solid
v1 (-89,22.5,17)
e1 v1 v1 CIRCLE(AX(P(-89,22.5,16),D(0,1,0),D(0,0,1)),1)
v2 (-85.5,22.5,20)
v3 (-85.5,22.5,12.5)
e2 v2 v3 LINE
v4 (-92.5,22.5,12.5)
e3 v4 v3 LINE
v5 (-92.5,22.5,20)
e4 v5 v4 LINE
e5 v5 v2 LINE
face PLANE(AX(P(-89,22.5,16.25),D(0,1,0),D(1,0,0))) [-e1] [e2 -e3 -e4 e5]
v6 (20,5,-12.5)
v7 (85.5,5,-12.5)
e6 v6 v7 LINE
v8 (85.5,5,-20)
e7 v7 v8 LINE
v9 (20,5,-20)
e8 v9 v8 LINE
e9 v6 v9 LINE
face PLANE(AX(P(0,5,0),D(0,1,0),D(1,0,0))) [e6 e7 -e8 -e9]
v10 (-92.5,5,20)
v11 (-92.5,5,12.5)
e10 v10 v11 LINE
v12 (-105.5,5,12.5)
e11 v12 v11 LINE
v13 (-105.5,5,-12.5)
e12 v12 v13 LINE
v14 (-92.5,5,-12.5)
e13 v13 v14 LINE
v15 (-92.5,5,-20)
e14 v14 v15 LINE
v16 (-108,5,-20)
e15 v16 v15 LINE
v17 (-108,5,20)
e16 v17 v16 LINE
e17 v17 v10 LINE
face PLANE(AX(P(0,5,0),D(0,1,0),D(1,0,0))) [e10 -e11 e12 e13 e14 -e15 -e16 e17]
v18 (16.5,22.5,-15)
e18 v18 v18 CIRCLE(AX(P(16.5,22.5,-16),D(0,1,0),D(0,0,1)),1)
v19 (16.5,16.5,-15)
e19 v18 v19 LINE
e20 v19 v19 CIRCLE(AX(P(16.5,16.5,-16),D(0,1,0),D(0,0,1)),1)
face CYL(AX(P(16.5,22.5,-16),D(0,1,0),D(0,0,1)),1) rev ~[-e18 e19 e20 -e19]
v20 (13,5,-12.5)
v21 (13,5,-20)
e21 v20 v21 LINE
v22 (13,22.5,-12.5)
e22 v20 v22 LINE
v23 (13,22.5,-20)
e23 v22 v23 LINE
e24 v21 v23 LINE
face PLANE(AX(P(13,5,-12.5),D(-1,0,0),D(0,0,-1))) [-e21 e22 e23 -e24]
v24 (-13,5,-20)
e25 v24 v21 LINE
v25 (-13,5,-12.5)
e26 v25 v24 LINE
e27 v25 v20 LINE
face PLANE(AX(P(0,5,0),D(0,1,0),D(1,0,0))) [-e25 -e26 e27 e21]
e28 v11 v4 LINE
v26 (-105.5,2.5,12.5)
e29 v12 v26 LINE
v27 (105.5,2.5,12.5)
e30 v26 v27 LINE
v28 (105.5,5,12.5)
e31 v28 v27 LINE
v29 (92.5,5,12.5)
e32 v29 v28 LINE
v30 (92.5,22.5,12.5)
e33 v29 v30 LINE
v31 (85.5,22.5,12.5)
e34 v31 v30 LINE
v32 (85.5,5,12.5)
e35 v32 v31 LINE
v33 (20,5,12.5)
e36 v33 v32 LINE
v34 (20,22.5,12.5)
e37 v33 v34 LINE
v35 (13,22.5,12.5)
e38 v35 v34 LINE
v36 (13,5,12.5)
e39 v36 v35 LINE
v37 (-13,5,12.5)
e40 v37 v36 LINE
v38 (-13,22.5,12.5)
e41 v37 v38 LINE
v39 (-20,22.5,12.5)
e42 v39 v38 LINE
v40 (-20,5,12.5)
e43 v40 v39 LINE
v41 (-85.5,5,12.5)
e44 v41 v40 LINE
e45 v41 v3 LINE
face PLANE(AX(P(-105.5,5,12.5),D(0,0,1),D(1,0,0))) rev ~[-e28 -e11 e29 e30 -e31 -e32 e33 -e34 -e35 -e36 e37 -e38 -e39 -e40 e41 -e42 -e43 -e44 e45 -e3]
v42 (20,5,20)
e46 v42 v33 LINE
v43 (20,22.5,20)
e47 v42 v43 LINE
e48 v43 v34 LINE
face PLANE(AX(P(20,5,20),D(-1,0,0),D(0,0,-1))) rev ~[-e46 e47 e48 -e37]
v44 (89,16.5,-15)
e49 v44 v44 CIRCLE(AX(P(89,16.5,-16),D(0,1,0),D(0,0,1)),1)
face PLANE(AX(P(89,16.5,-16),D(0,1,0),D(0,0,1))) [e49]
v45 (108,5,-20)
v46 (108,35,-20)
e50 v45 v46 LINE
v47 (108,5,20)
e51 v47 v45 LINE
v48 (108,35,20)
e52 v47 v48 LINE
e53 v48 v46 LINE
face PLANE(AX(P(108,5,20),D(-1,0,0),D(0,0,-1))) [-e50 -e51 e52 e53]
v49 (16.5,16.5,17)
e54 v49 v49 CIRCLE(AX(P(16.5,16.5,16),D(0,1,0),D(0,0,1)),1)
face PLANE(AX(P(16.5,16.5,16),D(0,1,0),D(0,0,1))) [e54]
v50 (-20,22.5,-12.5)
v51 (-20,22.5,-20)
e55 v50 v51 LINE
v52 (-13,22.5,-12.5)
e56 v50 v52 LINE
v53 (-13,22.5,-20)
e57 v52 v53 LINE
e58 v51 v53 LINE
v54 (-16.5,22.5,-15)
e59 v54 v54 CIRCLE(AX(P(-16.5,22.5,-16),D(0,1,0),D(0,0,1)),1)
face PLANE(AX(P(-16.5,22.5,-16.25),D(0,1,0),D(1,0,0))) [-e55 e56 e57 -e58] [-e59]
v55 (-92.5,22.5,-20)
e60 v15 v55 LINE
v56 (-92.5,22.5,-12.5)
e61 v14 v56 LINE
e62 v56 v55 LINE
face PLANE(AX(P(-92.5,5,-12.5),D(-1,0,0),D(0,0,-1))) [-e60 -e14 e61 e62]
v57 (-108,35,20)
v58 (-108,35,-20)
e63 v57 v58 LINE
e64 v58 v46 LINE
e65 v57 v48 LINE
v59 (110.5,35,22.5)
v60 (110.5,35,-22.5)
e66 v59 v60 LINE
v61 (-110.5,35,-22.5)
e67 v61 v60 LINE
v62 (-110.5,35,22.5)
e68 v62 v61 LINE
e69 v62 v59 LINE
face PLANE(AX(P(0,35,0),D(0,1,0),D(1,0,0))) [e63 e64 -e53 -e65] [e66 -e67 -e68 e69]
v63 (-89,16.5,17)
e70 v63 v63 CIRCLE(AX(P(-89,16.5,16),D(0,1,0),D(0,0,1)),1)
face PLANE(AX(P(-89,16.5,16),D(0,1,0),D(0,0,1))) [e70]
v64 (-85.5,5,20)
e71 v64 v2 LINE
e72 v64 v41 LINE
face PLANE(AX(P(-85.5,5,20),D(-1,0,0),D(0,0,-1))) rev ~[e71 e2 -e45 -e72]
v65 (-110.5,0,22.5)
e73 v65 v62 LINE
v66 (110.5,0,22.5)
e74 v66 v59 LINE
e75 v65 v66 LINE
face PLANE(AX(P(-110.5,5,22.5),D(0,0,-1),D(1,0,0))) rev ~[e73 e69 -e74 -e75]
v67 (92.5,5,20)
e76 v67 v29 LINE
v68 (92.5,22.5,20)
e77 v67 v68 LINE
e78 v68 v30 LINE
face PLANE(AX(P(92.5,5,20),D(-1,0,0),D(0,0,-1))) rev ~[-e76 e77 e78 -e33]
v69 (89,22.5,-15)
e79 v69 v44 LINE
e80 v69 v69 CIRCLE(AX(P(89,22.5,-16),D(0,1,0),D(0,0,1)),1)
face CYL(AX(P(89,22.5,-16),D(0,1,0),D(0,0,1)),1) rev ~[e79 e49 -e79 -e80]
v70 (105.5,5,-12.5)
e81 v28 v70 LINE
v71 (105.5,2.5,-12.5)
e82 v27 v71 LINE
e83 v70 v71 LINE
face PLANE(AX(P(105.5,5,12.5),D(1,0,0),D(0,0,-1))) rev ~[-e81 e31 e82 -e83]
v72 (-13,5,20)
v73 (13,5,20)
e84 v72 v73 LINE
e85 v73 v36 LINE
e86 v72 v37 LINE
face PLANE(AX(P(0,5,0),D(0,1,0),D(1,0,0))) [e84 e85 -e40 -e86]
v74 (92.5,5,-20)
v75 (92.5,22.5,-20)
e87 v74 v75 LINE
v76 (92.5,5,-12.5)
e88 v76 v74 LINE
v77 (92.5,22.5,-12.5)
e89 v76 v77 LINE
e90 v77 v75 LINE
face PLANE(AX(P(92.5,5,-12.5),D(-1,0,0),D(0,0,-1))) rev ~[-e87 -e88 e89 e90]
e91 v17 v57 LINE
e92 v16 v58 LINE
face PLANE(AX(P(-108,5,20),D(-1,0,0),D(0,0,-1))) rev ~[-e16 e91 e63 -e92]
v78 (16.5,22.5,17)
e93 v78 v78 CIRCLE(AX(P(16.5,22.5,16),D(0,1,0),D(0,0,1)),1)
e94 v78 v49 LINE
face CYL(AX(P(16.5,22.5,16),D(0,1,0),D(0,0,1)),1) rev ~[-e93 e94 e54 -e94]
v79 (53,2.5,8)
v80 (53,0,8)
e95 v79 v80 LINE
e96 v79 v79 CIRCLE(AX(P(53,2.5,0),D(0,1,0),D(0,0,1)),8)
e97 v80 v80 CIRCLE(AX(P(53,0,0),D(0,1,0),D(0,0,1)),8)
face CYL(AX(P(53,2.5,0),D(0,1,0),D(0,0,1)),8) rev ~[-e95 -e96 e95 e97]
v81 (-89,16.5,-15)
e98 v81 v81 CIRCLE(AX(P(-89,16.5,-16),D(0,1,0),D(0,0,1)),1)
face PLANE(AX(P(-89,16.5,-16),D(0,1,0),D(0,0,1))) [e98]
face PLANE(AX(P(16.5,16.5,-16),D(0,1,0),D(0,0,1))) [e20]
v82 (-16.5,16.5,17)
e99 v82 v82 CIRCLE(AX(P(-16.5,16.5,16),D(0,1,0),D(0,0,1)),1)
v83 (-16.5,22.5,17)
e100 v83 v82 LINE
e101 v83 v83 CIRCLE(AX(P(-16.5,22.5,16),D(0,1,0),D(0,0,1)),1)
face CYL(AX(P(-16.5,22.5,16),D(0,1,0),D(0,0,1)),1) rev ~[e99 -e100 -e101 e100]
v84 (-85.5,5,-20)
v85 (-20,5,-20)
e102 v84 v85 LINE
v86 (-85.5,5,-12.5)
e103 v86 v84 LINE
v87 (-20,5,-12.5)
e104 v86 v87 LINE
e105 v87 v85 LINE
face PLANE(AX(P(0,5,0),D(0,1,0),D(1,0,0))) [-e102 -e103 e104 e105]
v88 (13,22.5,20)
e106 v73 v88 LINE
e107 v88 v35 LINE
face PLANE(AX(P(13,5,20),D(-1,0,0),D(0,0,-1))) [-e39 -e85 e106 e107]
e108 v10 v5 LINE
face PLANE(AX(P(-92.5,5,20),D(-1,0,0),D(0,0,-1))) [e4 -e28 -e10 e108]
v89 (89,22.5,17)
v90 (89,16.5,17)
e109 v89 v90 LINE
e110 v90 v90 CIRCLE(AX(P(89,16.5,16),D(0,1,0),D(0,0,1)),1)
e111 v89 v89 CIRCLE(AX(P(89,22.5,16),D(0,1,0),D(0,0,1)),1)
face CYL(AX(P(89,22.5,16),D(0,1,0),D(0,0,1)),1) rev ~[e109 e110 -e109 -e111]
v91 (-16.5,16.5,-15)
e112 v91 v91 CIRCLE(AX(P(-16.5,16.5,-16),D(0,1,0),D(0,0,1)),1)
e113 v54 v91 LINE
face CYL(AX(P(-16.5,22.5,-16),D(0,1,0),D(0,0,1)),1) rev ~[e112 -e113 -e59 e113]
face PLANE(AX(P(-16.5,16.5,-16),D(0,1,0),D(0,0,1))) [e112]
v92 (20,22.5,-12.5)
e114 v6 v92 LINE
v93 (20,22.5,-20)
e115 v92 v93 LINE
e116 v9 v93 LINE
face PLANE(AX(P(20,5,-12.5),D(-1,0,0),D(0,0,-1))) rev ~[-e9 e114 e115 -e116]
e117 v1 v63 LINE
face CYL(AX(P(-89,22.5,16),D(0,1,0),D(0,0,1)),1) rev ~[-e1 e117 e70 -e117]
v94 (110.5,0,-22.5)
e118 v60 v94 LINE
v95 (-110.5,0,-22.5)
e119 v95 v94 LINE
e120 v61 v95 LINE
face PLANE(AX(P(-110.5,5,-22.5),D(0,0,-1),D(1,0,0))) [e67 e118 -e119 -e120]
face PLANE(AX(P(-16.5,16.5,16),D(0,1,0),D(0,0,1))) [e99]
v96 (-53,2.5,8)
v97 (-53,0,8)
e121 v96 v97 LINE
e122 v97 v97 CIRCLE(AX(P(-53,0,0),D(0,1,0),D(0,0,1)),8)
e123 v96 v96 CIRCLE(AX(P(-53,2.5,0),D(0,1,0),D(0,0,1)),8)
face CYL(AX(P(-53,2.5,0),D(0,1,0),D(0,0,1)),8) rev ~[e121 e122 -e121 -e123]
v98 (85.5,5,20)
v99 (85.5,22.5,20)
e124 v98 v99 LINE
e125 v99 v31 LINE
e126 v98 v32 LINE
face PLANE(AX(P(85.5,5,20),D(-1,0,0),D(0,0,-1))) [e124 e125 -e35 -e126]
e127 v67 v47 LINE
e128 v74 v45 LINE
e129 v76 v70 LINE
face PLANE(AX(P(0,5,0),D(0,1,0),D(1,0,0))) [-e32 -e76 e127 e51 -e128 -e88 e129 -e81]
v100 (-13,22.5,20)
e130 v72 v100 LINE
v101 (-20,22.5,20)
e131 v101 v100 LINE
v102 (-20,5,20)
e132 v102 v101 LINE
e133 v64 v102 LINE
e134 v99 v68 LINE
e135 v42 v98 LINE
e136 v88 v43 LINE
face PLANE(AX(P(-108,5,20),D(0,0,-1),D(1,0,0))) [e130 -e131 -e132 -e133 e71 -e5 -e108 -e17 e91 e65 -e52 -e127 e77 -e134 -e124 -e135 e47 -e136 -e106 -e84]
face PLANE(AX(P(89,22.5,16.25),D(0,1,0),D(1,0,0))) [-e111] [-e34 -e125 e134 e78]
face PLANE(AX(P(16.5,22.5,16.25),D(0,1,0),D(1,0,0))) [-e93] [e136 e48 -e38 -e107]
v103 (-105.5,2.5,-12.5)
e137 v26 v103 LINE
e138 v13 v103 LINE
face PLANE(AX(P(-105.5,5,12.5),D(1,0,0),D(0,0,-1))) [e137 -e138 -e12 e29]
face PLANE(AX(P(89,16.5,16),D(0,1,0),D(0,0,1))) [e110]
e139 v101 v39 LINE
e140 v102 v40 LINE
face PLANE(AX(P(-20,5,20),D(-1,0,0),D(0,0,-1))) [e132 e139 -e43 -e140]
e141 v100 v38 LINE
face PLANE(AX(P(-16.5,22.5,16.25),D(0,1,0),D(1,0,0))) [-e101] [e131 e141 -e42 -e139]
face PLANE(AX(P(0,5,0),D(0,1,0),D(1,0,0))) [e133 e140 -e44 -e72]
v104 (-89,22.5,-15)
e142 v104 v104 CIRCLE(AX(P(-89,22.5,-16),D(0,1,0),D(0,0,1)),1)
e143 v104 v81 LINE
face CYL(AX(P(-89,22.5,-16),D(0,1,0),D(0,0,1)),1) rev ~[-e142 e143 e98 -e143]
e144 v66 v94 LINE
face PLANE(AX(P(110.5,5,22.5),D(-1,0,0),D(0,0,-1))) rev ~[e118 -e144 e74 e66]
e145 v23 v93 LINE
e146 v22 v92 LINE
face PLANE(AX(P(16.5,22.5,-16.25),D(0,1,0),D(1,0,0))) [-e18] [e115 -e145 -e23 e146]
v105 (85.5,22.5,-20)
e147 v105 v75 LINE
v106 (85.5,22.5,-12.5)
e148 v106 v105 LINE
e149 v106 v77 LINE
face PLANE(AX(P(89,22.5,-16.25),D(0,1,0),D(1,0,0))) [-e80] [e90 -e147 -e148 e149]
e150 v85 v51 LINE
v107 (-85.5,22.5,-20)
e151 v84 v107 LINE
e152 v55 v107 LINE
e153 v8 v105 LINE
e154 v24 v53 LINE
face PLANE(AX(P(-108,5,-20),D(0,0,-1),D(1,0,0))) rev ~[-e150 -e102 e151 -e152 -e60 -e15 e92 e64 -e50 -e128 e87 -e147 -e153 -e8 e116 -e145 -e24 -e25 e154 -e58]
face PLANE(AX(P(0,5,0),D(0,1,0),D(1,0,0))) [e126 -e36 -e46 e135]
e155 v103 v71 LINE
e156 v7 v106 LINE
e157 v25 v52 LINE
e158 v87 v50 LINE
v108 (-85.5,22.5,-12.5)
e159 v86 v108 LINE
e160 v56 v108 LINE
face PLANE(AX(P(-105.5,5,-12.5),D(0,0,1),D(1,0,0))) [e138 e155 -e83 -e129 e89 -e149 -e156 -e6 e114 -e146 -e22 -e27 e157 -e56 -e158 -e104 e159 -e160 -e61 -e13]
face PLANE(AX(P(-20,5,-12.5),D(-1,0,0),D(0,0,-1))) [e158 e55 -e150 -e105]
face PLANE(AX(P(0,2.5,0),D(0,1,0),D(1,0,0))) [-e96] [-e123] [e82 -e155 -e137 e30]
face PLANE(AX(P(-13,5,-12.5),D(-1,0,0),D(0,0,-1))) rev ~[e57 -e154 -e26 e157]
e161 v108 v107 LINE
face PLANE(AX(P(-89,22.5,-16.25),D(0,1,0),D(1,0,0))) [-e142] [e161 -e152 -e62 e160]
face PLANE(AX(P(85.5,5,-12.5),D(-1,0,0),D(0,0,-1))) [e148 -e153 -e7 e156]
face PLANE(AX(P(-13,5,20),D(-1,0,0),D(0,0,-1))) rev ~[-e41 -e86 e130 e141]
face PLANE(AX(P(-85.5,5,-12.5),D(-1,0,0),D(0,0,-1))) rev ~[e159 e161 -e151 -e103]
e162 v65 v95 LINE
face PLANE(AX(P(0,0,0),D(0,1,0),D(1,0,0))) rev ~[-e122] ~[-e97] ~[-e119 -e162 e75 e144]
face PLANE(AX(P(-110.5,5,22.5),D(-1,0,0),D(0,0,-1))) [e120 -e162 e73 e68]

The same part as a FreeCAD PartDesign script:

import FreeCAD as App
import Part
import Sketcher


def add_polygon(sketch, points):
    """Adds a closed chain of lines whose ends are joined by coincident constraints."""
    first, n = sketch.GeometryCount, len(points)
    for a, b in zip(points, points[1:] + points[:1]):
        sketch.addGeometry(Part.LineSegment(App.Vector(*a, 0), App.Vector(*b, 0)), False)
    for i in range(n):
        sketch.addConstraint(Sketcher.Constraint("Coincident", first + i, 2, first + (i + 1) % n, 1))

doc = App.newDocument("Part")
body = doc.addObject("PartDesign::Body", "Body")

sketch1 = body.newObject("Sketcher::SketchObject", "Sketch")
sketch1.AttachmentSupport = (doc.getObject("XZ_Plane"), [""])
sketch1.MapMode = "FlatFace"
add_polygon(sketch1, [(-110, -22), (-110, 22), (110, 22), (110, -22)])
sketch1.addConstraint(Sketcher.Constraint("Vertical", 0))
sketch1.addConstraint(Sketcher.Constraint("Horizontal", 1))
sketch1.addConstraint(Sketcher.Constraint("Vertical", 2))
sketch1.addConstraint(Sketcher.Constraint("Horizontal", 3))
sketch1.addConstraint(Sketcher.Constraint("Symmetric", 0, 2, 2, 2, -1, 1))
sketch1.addConstraint(Sketcher.Constraint("DistanceX", 1, 1, 1, 2, 221.0))
sketch1.addConstraint(Sketcher.Constraint("DistanceY", 0, 1, 0, 2, 45.0))
pad1 = body.newObject("PartDesign::Pad", "Pad")
pad1.Profile = sketch1
pad1.Length = 5
pad1.Reversed = True

sketch2 = body.newObject("Sketcher::SketchObject", "Sketch001")
sketch2.AttachmentSupport = (doc.getObject("XZ_Plane"), [""])
sketch2.MapMode = "FlatFace"
sketch2.AttachmentOffset = App.Placement(App.Vector(0, 0, -5), App.Rotation())
add_polygon(sketch2, [(-106, -12), (-106, 12), (106, 12), (106, -12)])
sketch2.addConstraint(Sketcher.Constraint("Vertical", 0))
sketch2.addConstraint(Sketcher.Constraint("Horizontal", 1))
sketch2.addConstraint(Sketcher.Constraint("Vertical", 2))
sketch2.addConstraint(Sketcher.Constraint("Horizontal", 3))
sketch2.addConstraint(Sketcher.Constraint("Symmetric", 0, 2, 2, 2, -1, 1))
sketch2.addConstraint(Sketcher.Constraint("DistanceX", 1, 1, 1, 2, 211.0))
sketch2.addConstraint(Sketcher.Constraint("DistanceY", 0, 1, 0, 2, 25.0))
pocket1 = body.newObject("PartDesign::Pocket", "Pocket")
pocket1.Profile = sketch2
pocket1.Length = 2.5
pocket1.Reversed = True

sketch3 = body.newObject("Sketcher::SketchObject", "Sketch002")
sketch3.AttachmentSupport = (doc.getObject("XZ_Plane"), [""])
sketch3.MapMode = "FlatFace"
sketch3.AttachmentOffset = App.Placement(App.Vector(0, 0, -2.5), App.Rotation())
sketch3.addGeometry(Part.Circle(App.Vector(-53, 0, 0), App.Vector(0, 0, 1), 8), False)
sketch3.addGeometry(Part.Circle(App.Vector(53, 0, 0), App.Vector(0, 0, 1), 8), False)
sketch3.addConstraint(Sketcher.Constraint("Equal", 0, 1))
sketch3.addConstraint(Sketcher.Constraint("Symmetric", 0, 3, 1, 3, -1, 1))
sketch3.addConstraint(Sketcher.Constraint("PointOnObject", 0, 3, -1))
sketch3.addConstraint(Sketcher.Constraint("Diameter", 0, 16.0))
sketch3.addConstraint(Sketcher.Constraint("DistanceX", 0, 3, -1, 1, 53.0))
pocket2 = body.newObject("PartDesign::Pocket", "Pocket001")
pocket2.Profile = sketch3
pocket2.Length = 2.5
pocket2.Reversed = True

sketch4 = body.newObject("Sketcher::SketchObject", "Sketch003")
sketch4.AttachmentSupport = (doc.getObject("XZ_Plane"), [""])
sketch4.MapMode = "FlatFace"
sketch4.AttachmentOffset = App.Placement(App.Vector(0, 0, -5), App.Rotation())
add_polygon(sketch4, [(-110, -22), (-110, 22), (110, 22), (110, -22)])
add_polygon(sketch4, [(108, 20), (-108, 20), (-108, -20), (108, -20)])
sketch4.addConstraint(Sketcher.Constraint("Vertical", 0))
sketch4.addConstraint(Sketcher.Constraint("Horizontal", 1))
sketch4.addConstraint(Sketcher.Constraint("Vertical", 2))
sketch4.addConstraint(Sketcher.Constraint("Horizontal", 3))
sketch4.addConstraint(Sketcher.Constraint("Horizontal", 4))
sketch4.addConstraint(Sketcher.Constraint("Vertical", 5))
sketch4.addConstraint(Sketcher.Constraint("Horizontal", 6))
sketch4.addConstraint(Sketcher.Constraint("Vertical", 7))
sketch4.addConstraint(Sketcher.Constraint("Symmetric", 0, 2, 2, 2, -1, 1))
sketch4.addConstraint(Sketcher.Constraint("Symmetric", 4, 2, 6, 2, -1, 1))
sketch4.addConstraint(Sketcher.Constraint("DistanceX", 1, 1, 1, 2, 221.0))
sketch4.addConstraint(Sketcher.Constraint("DistanceX", 4, 2, 4, 1, 216.0))
sketch4.addConstraint(Sketcher.Constraint("DistanceY", 0, 1, 0, 2, 45.0))
sketch4.addConstraint(Sketcher.Constraint("DistanceY", 5, 2, 5, 1, 40.0))
pad2 = body.newObject("PartDesign::Pad", "Pad001")
pad2.Profile = sketch4
pad2.Length = 30
pad2.Reversed = True

sketch5 = body.newObject("Sketcher::SketchObject", "Sketch004")
sketch5.AttachmentSupport = (doc.getObject("XZ_Plane"), [""])
sketch5.MapMode = "FlatFace"
sketch5.AttachmentOffset = App.Placement(App.Vector(0, 0, -5), App.Rotation())
add_polygon(sketch5, [(-92, -20), (-92, -12), (-86, -12), (-86, -20)])
add_polygon(sketch5, [(-92, 12), (-92, 20), (-86, 20), (-86, 12)])
add_polygon(sketch5, [(-20, -20), (-20, -12), (-13, -12), (-13, -20)])
add_polygon(sketch5, [(-20, 12), (-20, 20), (-13, 20), (-13, 12)])
add_polygon(sketch5, [(13, -20), (13, -12), (20, -12), (20, -20)])
add_polygon(sketch5, [(13, 12), (13, 20), (20, 20), (20, 12)])
add_polygon(sketch5, [(86, -20), (86, -12), (92, -12), (92, -20)])
add_polygon(sketch5, [(86, 12), (86, 20), (92, 20), (92, 12)])
sketch5.addConstraint(Sketcher.Constraint("Vertical", 0))
sketch5.addConstraint(Sketcher.Constraint("Horizontal", 1))
sketch5.addConstraint(Sketcher.Constraint("Vertical", 2))
sketch5.addConstraint(Sketcher.Constraint("Horizontal", 3))
sketch5.addConstraint(Sketcher.Constraint("Vertical", 4))
sketch5.addConstraint(Sketcher.Constraint("Horizontal", 5))
sketch5.addConstraint(Sketcher.Constraint("Vertical", 6))
sketch5.addConstraint(Sketcher.Constraint("Horizontal", 7))
sketch5.addConstraint(Sketcher.Constraint("Vertical", 8))
sketch5.addConstraint(Sketcher.Constraint("Horizontal", 9))
sketch5.addConstraint(Sketcher.Constraint("Vertical", 10))
sketch5.addConstraint(Sketcher.Constraint("Horizontal", 11))
sketch5.addConstraint(Sketcher.Constraint("Vertical", 12))
sketch5.addConstraint(Sketcher.Constraint("Horizontal", 13))
sketch5.addConstraint(Sketcher.Constraint("Vertical", 14))
sketch5.addConstraint(Sketcher.Constraint("Horizontal", 15))
sketch5.addConstraint(Sketcher.Constraint("Vertical", 16))
sketch5.addConstraint(Sketcher.Constraint("Horizontal", 17))
sketch5.addConstraint(Sketcher.Constraint("Vertical", 18))
sketch5.addConstraint(Sketcher.Constraint("Horizontal", 19))
sketch5.addConstraint(Sketcher.Constraint("Vertical", 20))
sketch5.addConstraint(Sketcher.Constraint("Horizontal", 21))
sketch5.addConstraint(Sketcher.Constraint("Vertical", 22))
sketch5.addConstraint(Sketcher.Constraint("Horizontal", 23))
sketch5.addConstraint(Sketcher.Constraint("Vertical", 24))
sketch5.addConstraint(Sketcher.Constraint("Horizontal", 25))
sketch5.addConstraint(Sketcher.Constraint("Vertical", 26))
sketch5.addConstraint(Sketcher.Constraint("Horizontal", 27))
sketch5.addConstraint(Sketcher.Constraint("Vertical", 28))
sketch5.addConstraint(Sketcher.Constraint("Horizontal", 29))
sketch5.addConstraint(Sketcher.Constraint("Vertical", 30))
sketch5.addConstraint(Sketcher.Constraint("Horizontal", 31))
sketch5.addConstraint(Sketcher.Constraint("Symmetric", 14, 2, 16, 2, -1, 1))
sketch5.addConstraint(Sketcher.Constraint("Symmetric", 12, 2, 18, 2, -1, 1))
sketch5.addConstraint(Sketcher.Constraint("Symmetric", 10, 2, 20, 2, -1, 1))
sketch5.addConstraint(Sketcher.Constraint("Symmetric", 8, 2, 22, 2, -1, 1))
sketch5.addConstraint(Sketcher.Constraint("Symmetric", 6, 2, 24, 2, -1, 1))
sketch5.addConstraint(Sketcher.Constraint("Symmetric", 4, 2, 26, 2, -1, 1))
sketch5.addConstraint(Sketcher.Constraint("Symmetric", 2, 2, 28, 2, -1, 1))
sketch5.addConstraint(Sketcher.Constraint("Symmetric", 0, 2, 30, 2, -1, 1))
sketch5.addConstraint(Sketcher.Constraint("Symmetric", 9, 2, 16, 2, -2))
sketch5.addConstraint(Sketcher.Constraint("Symmetric", 11, 2, 18, 2, -2))
sketch5.addConstraint(Sketcher.Constraint("Symmetric", 1, 2, 24, 2, -2))
sketch5.addConstraint(Sketcher.Constraint("Symmetric", 3, 2, 26, 2, -2))
sketch5.addConstraint(Sketcher.Constraint("Horizontal", 1, 2, 8, 2))
sketch5.addConstraint(Sketcher.Constraint("Horizontal", 3, 2, 10, 2))
sketch5.addConstraint(Sketcher.Constraint("Equal", 7, 9))
sketch5.addConstraint(Sketcher.Constraint("DistanceX", 1, 1, 1, 2, 7.0))
sketch5.addConstraint(Sketcher.Constraint("DistanceY", 0, 1, 0, 2, 7.5))
sketch5.addConstraint(Sketcher.Constraint("DistanceY", 2, 2, -1, 1, 20.0))
sketch5.addConstraint(Sketcher.Constraint("DistanceX", 8, 2, -1, 1, 20.0))
sketch5.addConstraint(Sketcher.Constraint("DistanceX", 0, 2, -1, 1, 92.5))
pad3 = body.newObject("PartDesign::Pad", "Pad002")
pad3.Profile = sketch5
pad3.Length = 17.5
pad3.Reversed = True

sketch6 = body.newObject("Sketcher::SketchObject", "Sketch005")
sketch6.AttachmentSupport = (doc.getObject("XZ_Plane"), [""])
sketch6.MapMode = "FlatFace"
sketch6.AttachmentOffset = App.Placement(App.Vector(0, 0, -22.5), App.Rotation())
sketch6.addGeometry(Part.Circle(App.Vector(-89, -16, 0), App.Vector(0, 0, 1), 1), False)
sketch6.addGeometry(Part.Circle(App.Vector(-89, 16, 0), App.Vector(0, 0, 1), 1), False)
sketch6.addGeometry(Part.Circle(App.Vector(-16.5, -16, 0), App.Vector(0, 0, 1), 1), False)
sketch6.addGeometry(Part.Circle(App.Vector(-16.5, 16, 0), App.Vector(0, 0, 1), 1), False)
sketch6.addGeometry(Part.Circle(App.Vector(16.5, -16, 0), App.Vector(0, 0, 1), 1), False)
sketch6.addGeometry(Part.Circle(App.Vector(16.5, 16, 0), App.Vector(0, 0, 1), 1), False)
sketch6.addGeometry(Part.Circle(App.Vector(89, -16, 0), App.Vector(0, 0, 1), 1), False)
sketch6.addGeometry(Part.Circle(App.Vector(89, 16, 0), App.Vector(0, 0, 1), 1), False)
sketch6.addConstraint(Sketcher.Constraint("Equal", 0, 1))
sketch6.addConstraint(Sketcher.Constraint("Equal", 1, 2))
sketch6.addConstraint(Sketcher.Constraint("Equal", 2, 3))
sketch6.addConstraint(Sketcher.Constraint("Equal", 3, 4))
sketch6.addConstraint(Sketcher.Constraint("Equal", 4, 5))
sketch6.addConstraint(Sketcher.Constraint("Equal", 5, 6))
sketch6.addConstraint(Sketcher.Constraint("Equal", 6, 7))
sketch6.addConstraint(Sketcher.Constraint("Symmetric", 3, 3, 4, 3, -1, 1))
sketch6.addConstraint(Sketcher.Constraint("Symmetric", 2, 3, 5, 3, -1, 1))
sketch6.addConstraint(Sketcher.Constraint("Symmetric", 1, 3, 6, 3, -1, 1))
sketch6.addConstraint(Sketcher.Constraint("Symmetric", 0, 3, 7, 3, -1, 1))
sketch6.addConstraint(Sketcher.Constraint("Symmetric", 2, 3, 4, 3, -2))
sketch6.addConstraint(Sketcher.Constraint("Symmetric", 0, 3, 6, 3, -2))
sketch6.addConstraint(Sketcher.Constraint("Horizontal", 0, 3, 2, 3))
sketch6.addConstraint(Sketcher.Constraint("Diameter", 0, 2.0))
sketch6.addConstraint(Sketcher.Constraint("DistanceX", 0, 3, -1, 1, 89.0))
sketch6.addConstraint(Sketcher.Constraint("DistanceY", 0, 3, -1, 1, 16.0))
sketch6.addConstraint(Sketcher.Constraint("DistanceX", 2, 3, 4, 3, 33.0))
pocket3 = body.newObject("PartDesign::Pocket", "Pocket002")
pocket3.Profile = sketch6
pocket3.Length = 6
pocket3.Reversed = True

doc.recompute()
